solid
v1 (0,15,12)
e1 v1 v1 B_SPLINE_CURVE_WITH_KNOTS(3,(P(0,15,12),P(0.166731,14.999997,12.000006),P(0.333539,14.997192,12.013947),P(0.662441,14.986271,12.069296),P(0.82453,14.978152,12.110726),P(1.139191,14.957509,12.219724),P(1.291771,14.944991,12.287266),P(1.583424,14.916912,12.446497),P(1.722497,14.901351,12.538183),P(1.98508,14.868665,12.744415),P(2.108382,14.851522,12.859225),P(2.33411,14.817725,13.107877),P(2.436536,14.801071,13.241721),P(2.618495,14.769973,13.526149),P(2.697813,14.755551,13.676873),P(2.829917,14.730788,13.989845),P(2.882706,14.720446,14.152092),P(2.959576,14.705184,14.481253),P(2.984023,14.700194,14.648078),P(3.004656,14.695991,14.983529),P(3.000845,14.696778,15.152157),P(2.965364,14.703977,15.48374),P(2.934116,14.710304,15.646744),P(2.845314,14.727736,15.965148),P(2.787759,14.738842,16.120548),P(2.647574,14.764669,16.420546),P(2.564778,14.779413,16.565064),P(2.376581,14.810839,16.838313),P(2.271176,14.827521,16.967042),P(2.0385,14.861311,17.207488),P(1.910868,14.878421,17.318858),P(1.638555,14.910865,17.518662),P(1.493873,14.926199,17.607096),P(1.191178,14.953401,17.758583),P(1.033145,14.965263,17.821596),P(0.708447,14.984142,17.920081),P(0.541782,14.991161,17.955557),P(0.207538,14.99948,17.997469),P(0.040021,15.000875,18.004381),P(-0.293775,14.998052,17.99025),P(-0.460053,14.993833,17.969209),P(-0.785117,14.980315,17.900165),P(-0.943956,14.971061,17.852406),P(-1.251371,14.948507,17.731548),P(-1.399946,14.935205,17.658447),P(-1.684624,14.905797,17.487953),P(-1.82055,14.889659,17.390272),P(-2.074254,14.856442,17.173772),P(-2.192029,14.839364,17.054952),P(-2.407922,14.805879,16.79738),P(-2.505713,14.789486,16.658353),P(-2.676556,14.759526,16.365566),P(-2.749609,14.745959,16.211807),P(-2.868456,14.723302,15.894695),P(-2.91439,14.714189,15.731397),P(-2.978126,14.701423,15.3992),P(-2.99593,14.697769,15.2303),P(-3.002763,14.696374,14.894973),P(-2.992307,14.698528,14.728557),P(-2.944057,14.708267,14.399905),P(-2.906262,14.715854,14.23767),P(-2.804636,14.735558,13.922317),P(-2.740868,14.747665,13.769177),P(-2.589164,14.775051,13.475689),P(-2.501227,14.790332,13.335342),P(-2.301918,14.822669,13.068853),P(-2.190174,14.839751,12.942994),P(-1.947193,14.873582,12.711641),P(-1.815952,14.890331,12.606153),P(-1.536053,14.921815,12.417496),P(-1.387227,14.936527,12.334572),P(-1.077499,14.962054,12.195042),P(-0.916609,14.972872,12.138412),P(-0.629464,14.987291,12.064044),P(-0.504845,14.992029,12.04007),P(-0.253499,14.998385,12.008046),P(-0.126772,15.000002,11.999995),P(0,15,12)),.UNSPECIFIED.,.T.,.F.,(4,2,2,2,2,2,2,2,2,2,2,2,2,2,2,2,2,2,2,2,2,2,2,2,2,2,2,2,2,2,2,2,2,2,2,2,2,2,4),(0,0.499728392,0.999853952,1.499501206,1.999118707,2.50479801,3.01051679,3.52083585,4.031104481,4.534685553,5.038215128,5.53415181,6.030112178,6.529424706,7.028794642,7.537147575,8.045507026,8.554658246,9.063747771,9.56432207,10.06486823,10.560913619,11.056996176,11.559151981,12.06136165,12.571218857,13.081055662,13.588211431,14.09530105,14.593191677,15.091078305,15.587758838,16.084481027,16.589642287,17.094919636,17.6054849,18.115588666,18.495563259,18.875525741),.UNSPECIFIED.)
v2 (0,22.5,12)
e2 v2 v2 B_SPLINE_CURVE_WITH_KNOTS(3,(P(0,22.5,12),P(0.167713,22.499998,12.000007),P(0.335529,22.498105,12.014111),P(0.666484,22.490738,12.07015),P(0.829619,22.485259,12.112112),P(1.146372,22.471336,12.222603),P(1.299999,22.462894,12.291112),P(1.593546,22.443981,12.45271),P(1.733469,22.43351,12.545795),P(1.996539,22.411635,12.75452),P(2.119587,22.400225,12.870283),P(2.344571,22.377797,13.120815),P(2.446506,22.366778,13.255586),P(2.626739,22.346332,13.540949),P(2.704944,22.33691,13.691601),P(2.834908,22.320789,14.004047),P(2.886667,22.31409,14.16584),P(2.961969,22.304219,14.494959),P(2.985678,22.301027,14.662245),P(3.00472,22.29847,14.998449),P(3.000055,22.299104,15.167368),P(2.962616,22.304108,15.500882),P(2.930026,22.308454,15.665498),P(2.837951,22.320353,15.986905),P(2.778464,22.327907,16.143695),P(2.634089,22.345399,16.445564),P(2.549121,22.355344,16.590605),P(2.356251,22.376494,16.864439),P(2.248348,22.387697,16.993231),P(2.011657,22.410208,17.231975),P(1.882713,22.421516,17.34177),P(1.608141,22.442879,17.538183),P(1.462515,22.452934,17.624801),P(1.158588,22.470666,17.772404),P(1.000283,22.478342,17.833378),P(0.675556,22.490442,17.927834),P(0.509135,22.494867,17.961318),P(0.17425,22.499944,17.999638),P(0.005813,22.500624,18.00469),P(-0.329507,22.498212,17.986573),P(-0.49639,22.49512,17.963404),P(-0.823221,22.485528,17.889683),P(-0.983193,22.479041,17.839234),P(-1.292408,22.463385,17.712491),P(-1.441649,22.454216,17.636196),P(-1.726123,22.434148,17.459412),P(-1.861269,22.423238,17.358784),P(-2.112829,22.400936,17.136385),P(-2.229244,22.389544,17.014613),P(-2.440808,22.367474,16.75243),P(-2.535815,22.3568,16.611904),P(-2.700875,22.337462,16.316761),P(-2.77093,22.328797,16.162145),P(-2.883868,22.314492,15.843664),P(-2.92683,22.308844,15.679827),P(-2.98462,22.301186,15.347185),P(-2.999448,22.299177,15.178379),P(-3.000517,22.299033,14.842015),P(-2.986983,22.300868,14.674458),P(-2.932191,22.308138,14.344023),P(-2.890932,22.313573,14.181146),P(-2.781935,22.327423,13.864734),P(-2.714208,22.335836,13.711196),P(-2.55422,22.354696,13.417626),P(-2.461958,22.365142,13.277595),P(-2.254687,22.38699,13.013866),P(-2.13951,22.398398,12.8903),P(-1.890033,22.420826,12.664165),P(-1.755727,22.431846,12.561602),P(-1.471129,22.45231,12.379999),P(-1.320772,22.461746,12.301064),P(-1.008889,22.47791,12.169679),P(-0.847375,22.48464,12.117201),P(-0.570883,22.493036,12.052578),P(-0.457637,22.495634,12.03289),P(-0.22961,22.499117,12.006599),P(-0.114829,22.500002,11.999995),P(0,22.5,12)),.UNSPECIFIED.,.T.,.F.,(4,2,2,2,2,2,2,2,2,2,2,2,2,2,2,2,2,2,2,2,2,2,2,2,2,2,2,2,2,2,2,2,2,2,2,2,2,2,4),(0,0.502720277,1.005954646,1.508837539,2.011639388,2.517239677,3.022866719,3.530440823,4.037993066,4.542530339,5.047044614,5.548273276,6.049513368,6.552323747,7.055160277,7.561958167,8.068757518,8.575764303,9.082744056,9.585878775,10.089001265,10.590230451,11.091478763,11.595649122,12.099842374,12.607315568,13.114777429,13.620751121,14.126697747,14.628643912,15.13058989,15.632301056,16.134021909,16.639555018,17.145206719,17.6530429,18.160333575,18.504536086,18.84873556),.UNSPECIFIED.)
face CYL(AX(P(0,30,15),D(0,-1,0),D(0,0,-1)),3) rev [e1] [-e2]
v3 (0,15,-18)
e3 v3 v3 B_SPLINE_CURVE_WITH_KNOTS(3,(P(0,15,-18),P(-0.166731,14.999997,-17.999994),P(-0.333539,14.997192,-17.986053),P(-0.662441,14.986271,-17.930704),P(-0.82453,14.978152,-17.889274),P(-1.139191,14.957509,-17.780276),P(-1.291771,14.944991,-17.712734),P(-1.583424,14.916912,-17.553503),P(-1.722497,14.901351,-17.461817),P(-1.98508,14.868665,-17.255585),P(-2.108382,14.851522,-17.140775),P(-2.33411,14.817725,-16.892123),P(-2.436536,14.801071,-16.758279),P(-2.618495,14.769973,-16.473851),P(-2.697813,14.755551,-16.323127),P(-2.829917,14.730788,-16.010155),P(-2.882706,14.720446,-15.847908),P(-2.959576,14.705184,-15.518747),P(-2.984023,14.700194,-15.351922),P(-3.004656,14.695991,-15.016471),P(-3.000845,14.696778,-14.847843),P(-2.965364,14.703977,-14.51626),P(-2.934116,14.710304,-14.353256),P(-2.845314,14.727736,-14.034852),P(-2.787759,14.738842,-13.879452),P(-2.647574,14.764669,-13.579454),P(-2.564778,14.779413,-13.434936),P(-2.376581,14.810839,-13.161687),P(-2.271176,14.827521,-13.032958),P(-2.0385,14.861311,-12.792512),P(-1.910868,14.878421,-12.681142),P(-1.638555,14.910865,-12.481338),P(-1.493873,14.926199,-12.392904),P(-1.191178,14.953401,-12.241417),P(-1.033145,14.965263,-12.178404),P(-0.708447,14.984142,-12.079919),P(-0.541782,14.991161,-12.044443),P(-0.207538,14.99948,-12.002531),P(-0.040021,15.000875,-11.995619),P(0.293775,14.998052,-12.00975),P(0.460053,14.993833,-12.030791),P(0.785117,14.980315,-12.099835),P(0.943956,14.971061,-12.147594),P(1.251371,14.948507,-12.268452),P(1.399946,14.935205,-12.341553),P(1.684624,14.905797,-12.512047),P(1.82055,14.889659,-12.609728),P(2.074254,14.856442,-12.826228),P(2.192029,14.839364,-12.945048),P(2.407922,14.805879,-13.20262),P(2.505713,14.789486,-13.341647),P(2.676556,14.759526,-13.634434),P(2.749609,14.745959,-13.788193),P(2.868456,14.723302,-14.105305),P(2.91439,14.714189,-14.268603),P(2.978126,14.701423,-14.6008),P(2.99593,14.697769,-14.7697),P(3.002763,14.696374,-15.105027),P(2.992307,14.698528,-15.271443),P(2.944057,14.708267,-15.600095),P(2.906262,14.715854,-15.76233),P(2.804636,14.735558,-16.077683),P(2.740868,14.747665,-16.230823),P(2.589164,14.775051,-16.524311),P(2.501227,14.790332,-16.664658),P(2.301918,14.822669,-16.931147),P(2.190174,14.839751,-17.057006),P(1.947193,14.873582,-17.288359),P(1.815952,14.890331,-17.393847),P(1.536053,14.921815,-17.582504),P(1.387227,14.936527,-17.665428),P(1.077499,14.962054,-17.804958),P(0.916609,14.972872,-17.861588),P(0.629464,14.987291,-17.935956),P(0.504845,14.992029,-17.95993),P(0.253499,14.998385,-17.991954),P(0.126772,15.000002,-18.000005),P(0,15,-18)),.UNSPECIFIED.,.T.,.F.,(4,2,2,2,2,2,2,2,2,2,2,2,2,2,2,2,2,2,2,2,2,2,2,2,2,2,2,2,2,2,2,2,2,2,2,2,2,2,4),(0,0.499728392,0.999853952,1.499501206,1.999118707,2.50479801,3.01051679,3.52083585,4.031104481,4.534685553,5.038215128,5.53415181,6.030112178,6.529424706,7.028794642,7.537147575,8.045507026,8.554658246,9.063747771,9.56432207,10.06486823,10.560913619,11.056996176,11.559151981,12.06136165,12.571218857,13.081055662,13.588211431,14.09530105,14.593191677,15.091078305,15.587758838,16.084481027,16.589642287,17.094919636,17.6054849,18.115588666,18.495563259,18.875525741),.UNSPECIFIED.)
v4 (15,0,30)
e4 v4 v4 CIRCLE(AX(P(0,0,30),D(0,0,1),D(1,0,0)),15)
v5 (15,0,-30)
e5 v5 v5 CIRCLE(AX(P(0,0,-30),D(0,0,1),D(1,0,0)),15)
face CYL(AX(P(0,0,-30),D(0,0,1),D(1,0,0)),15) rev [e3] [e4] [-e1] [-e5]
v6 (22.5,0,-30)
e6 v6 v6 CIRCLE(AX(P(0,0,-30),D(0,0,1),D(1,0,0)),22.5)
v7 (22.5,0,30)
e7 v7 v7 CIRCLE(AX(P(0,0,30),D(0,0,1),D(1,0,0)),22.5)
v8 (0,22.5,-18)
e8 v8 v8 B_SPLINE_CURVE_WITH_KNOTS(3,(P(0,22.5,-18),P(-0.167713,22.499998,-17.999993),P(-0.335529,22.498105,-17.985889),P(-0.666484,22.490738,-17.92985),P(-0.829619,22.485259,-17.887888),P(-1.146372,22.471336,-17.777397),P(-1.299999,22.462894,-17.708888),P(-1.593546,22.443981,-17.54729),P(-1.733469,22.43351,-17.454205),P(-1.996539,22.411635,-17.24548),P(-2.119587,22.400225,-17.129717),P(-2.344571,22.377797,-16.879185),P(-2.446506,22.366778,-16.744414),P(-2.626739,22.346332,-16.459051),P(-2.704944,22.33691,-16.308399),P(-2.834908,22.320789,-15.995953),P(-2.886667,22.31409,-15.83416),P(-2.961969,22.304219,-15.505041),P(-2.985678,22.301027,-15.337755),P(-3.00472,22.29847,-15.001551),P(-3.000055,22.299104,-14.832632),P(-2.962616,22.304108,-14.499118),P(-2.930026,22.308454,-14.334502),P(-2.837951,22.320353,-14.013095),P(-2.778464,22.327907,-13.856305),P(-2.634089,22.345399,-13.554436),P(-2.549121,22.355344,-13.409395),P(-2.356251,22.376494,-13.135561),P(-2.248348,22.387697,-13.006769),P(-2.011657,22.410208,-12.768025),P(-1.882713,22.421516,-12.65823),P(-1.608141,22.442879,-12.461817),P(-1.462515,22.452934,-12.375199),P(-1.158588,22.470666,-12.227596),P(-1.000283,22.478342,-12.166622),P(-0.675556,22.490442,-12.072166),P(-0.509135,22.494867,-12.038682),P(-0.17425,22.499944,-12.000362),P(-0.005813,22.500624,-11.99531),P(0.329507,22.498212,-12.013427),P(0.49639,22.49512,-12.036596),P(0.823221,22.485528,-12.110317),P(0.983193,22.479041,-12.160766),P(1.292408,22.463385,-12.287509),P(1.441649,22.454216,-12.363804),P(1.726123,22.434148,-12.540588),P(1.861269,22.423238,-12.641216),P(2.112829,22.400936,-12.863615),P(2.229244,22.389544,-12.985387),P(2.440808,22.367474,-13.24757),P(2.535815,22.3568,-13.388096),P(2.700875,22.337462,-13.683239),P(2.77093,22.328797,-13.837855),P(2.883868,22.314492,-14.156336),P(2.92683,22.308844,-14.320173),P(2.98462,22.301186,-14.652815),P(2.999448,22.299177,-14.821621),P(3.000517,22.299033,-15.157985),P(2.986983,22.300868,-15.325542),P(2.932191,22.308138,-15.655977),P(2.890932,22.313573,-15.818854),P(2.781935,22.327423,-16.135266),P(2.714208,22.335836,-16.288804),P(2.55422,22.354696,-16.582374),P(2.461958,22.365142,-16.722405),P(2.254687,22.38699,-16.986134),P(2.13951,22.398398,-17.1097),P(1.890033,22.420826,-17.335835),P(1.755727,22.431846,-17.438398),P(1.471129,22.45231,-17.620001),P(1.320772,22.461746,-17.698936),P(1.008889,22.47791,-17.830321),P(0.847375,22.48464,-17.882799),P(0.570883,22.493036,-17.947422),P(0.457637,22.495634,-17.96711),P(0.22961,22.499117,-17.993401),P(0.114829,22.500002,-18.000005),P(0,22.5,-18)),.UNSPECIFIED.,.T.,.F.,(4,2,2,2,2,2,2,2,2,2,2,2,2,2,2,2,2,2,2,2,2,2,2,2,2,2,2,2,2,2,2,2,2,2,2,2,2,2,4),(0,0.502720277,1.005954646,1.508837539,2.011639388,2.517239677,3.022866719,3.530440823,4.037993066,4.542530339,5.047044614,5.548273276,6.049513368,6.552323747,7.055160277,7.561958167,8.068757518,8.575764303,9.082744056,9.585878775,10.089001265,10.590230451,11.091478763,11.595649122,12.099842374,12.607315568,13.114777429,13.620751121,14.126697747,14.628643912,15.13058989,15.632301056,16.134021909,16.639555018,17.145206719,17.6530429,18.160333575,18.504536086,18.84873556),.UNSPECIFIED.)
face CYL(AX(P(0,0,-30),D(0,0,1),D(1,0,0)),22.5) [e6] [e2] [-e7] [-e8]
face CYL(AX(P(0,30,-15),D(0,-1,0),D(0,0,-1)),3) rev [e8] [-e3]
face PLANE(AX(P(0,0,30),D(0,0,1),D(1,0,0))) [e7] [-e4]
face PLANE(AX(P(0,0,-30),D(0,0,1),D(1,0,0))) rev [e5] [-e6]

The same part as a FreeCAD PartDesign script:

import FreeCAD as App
import Part
import Sketcher

V = App.Vector

doc = App.newDocument("Part")
body = doc.addObject("PartDesign::Body", "Body")

# Sketch on XY plane
sketch1 = body.newObject("Sketcher::SketchObject", "Sketch")
sketch1.AttachmentSupport = (doc.getObject("XY_Plane"), [""])
sketch1.MapMode = "FlatFace"
sketch1.addGeometry(Part.Circle(V(0, 0, 0), V(0, 0, 1), 22), False)
sketch1.addGeometry(Part.Circle(V(0, 0, 0), V(0, 0, 1), 15), False)
sketch1.addConstraint(Sketcher.Constraint("Coincident", 0, 3, -1, 1))
sketch1.addConstraint(Sketcher.Constraint("Coincident", 1, 3, -1, 1))
sketch1.addConstraint(Sketcher.Constraint("Diameter", 0, 45.0))
sketch1.addConstraint(Sketcher.Constraint("Diameter", 1, 30.0))
pad1 = body.newObject("PartDesign::Pad", "Pad")
pad1.Profile = sketch1
pad1.Type = "TwoLengths"
pad1.Length = 30
pad1.Length2 = 30

# Sketch on XZ plane
sketch2 = body.newObject("Sketcher::SketchObject", "Sketch001")
sketch2.AttachmentSupport = (doc.getObject("XZ_Plane"), [""])
sketch2.MapMode = "FlatFace"
sketch2.addGeometry(Part.Circle(V(0, 15, 0), V(0, 0, 1), 3), False)
sketch2.addConstraint(Sketcher.Constraint("PointOnObject", 0, 3, -2))
sketch2.addConstraint(Sketcher.Constraint("Diameter", 0, 6.0))
sketch2.addConstraint(Sketcher.Constraint("DistanceY", -1, 1, 0, 3, 15.0))
pocket1 = body.newObject("PartDesign::Pocket", "Pocket")
pocket1.Profile = sketch2
pocket1.Length = 30
doc.recompute()

mirrored = body.newObject("PartDesign::Mirrored", "Mirrored")
mirrored.Originals = [pocket1]
mirrored.MirrorPlane = (doc.getObject("XY_Plane"), [""])
body.Tip = mirrored

doc.recompute()
